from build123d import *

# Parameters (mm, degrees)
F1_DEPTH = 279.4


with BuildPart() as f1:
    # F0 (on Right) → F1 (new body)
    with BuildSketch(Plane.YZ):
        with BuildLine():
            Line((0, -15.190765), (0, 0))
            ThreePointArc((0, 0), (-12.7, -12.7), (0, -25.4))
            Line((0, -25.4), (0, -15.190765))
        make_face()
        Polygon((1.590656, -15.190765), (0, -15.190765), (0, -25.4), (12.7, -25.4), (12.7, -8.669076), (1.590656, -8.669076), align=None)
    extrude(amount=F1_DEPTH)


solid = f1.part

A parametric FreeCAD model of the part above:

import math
import FreeCAD as App
import Part
import Sketcher

V = App.Vector
Q = App.Units.Quantity

doc = App.newDocument("Part")
body = doc.addObject("PartDesign::Body", "Body")

sketch1 = doc.addObject("Sketcher::SketchObject", "Sketch")
body.addObject(sketch1)
sketch1.AttachmentSupport = (doc.YZ_Plane, [""])
sketch1.MapMode = "FlatFace"
sketch1.addGeometry([
    Part.ArcOfCircle(Part.Circle(V(0, -12.7, 0), V(0, 0, 1), 12.7), math.radians(90), math.radians(270)),
    Part.LineSegment(V(0, -25.4, 0), V(12.7, -25.4, 0)),
    Part.LineSegment(V(12.7, -25.4, 0), V(12.7, -8.7, 0)),
    Part.LineSegment(V(12.7, -8.7, 0), V(1.6, -8.7, 0)),
    Part.LineSegment(V(1.6, -8.7, 0), V(1.6, -15.2, 0)),
    Part.LineSegment(V(1.6, -15.2, 0), V(0, -15.2, 0)),
    Part.LineSegment(V(0, -15.2, 0), V(0, 0, 0)),
], False)
sketch1.addConstraint([
    Sketcher.Constraint("Tangent", 0, 2, 1, 1),
    Sketcher.Constraint("Coincident", 1, 2, 2, 1),
    Sketcher.Constraint("Coincident", 2, 2, 3, 1),
    Sketcher.Constraint("Coincident", 3, 2, 4, 1),
    Sketcher.Constraint("Coincident", 4, 2, 5, 1),
    Sketcher.Constraint("Coincident", 5, 2, 6, 1),
    Sketcher.Constraint("Coincident", 6, 2, 0, 1),
    Sketcher.Constraint("Horizontal", 1),
    Sketcher.Constraint("Vertical", 2),
    Sketcher.Constraint("Horizontal", 3),
    Sketcher.Constraint("Vertical", 4),
    Sketcher.Constraint("Horizontal", 5),
    Sketcher.Constraint("Vertical", 6),
    Sketcher.Constraint("Coincident", 6, 2, -1, 1),
    Sketcher.Constraint("PointOnObject", 0, 3, -2),
    Sketcher.Constraint("Radius", 0, Q("0.5 in")),
    Sketcher.Constraint("DistanceX", 1, 1, 1, 2, Q("0.5 in")),
    Sketcher.Constraint("DistanceY", 4, 2, 4, 1, 6.521689),
    Sketcher.Constraint("DistanceX", 3, 2, 3, 1, 11.109344),
    Sketcher.Constraint("DistanceY", 2, 1, 2, 2, 16.730924),
])
pad1 = doc.addObject("PartDesign::Pad", "Pad")
body.addObject(pad1)
pad1.Profile = sketch1
pad1.Length = Q("11 in")

doc.recompute()
